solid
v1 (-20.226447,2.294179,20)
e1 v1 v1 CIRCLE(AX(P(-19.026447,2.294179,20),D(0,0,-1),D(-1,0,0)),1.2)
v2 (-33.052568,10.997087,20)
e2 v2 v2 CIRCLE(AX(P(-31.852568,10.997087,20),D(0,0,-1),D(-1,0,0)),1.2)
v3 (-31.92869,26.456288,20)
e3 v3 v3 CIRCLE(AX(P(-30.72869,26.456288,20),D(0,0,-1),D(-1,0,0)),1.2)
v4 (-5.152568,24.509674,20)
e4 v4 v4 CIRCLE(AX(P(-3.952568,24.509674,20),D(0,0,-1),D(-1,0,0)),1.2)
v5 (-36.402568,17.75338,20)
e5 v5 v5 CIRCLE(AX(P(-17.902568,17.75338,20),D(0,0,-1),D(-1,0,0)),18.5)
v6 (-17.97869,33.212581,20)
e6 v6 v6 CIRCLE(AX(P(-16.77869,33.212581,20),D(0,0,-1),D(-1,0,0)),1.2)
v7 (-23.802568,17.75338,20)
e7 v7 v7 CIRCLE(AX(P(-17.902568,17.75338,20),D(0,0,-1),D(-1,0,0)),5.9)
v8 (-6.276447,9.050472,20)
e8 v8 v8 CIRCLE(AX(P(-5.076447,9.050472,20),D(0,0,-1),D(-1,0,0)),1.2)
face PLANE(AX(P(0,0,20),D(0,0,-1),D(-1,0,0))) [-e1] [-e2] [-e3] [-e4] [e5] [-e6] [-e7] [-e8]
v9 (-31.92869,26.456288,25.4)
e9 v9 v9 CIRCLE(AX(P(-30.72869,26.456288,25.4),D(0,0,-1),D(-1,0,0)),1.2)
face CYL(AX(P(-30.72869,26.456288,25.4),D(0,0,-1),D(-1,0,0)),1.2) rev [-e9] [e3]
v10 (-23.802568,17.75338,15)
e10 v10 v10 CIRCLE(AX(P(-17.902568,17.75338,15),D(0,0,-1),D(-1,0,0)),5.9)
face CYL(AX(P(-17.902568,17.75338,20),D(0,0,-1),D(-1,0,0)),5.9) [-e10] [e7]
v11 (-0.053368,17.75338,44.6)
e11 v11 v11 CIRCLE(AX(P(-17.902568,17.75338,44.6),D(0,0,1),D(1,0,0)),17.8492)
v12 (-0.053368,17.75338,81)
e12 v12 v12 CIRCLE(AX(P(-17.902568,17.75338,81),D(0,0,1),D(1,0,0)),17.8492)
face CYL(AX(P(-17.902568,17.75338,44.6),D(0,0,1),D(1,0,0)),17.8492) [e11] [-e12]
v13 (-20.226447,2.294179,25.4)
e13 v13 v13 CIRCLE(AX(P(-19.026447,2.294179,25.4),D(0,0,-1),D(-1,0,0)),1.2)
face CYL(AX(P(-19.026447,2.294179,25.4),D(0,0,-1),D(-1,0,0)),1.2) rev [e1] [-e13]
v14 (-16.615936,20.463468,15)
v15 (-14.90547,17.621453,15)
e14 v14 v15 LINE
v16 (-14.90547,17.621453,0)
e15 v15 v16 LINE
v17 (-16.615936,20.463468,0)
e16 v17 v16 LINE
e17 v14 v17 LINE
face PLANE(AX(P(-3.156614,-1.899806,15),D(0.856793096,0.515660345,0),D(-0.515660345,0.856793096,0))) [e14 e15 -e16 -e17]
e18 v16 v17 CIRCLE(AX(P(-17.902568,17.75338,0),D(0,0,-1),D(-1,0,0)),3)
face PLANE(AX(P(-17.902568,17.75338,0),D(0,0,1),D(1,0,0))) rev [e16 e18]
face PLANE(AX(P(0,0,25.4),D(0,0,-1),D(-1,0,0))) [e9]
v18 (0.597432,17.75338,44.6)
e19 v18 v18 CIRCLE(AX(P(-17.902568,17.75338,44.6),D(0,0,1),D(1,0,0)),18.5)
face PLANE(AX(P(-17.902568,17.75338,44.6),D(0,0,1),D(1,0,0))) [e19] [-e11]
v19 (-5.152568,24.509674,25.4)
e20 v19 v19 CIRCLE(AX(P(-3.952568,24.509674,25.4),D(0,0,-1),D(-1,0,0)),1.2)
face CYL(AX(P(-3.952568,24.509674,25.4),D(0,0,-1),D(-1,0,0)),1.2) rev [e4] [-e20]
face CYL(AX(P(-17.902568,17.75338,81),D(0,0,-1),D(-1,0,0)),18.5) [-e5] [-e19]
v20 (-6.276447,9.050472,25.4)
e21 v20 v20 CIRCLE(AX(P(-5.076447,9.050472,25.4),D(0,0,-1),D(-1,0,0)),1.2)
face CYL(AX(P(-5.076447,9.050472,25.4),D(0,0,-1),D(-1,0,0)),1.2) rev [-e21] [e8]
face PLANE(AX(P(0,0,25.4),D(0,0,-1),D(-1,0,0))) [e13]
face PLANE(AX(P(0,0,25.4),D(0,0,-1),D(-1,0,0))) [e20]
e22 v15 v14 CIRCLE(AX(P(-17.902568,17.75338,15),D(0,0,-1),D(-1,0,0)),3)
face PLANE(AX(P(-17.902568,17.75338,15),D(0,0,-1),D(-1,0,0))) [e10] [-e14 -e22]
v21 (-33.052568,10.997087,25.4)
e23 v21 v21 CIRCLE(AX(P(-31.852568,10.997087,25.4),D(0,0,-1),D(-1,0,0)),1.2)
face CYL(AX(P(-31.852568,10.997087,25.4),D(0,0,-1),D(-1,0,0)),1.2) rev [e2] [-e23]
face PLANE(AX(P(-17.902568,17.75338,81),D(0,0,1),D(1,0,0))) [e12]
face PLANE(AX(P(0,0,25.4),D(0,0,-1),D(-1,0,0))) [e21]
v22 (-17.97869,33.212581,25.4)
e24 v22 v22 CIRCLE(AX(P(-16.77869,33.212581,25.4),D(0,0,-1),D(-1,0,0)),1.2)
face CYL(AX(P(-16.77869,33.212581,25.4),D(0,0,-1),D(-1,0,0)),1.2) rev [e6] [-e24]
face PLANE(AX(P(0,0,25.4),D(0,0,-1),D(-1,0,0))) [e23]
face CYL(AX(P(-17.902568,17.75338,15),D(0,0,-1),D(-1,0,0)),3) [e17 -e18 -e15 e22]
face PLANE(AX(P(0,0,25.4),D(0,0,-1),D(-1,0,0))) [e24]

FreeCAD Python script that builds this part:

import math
import FreeCAD as App
import Part
import Sketcher

V = App.Vector
Q = App.Units.Quantity

doc = App.newDocument("Part")
body = doc.addObject("PartDesign::Body", "Body")

sketch1 = body.newObject("Sketcher::SketchObject", "Sketch")
sketch1.AttachmentSupport = (doc.getObject("XY_Plane"), [""])
sketch1.MapMode = "FlatFace"
sketch1.addGeometry(Part.Circle(V(-18, 18, 0), V(0, 0, 1), 18), False)
sketch1.addConstraint(Sketcher.Constraint("Diameter", 0, Q("37 mm")))
sketch1.addConstraint(Sketcher.Constraint("DistanceX", 0, 3, -1, 1, Q("17.902568 mm")))
sketch1.addConstraint(Sketcher.Constraint("DistanceY", -1, 1, 0, 3, Q("17.75338 mm")))
pad1 = body.newObject("PartDesign::Pad", "Pad")
pad1.Profile = sketch1
pad1.Length = 81

sketch2 = body.newObject("Sketcher::SketchObject", "Sketch001")
sketch2.AttachmentSupport = (doc.getObject("XY_Plane"), [""])
sketch2.MapMode = "FlatFace"
sketch2.addGeometry(Part.Circle(V(-18, 18, 0), V(0, 0, 1), 34), False)
sketch2.addGeometry(Part.Circle(V(-18, 18, 0), V(0, 0, 1), 6), False)
sketch2.addConstraint(Sketcher.Constraint("Coincident", 1, 3, 0, 3))
sketch2.addConstraint(Sketcher.Constraint("Diameter", 0, Q("69 mm")))
sketch2.addConstraint(Sketcher.Constraint("Diameter", 1, Q("11.8 mm")))
sketch2.addConstraint(Sketcher.Constraint("DistanceX", 0, 3, -1, 1, Q("17.902568 mm")))
sketch2.addConstraint(Sketcher.Constraint("DistanceY", -1, 1, 0, 3, Q("17.75338 mm")))
pocket1 = body.newObject("PartDesign::Pocket", "Pocket")
pocket1.Profile = sketch2
pocket1.Length = 20
pocket1.Reversed = True

sketch3 = body.newObject("Sketcher::SketchObject", "Sketch002")
sketch3.AttachmentSupport = (doc.getObject("XY_Plane"), [""])
sketch3.MapMode = "FlatFace"
sketch3.addGeometry(Part.Circle(V(-17.9, 17.8, 0), V(0, 0, 1), 5.9), False)
sketch3.addGeometry(Part.Circle(V(-17.9, 17.8, 0), V(0, 0, 1), 3), False)
sketch3.addConstraint(Sketcher.Constraint("Coincident", 1, 3, 0, 3))
sketch3.addConstraint(Sketcher.Constraint("Diameter", 1, Q("6 mm")))
sketch3.addConstraint(Sketcher.Constraint("Diameter", 0, Q("11.8 mm")))
sketch3.addConstraint(Sketcher.Constraint("DistanceX", 0, 3, -1, 1, Q("17.902568 mm")))
sketch3.addConstraint(Sketcher.Constraint("DistanceY", -1, 1, 0, 3, Q("17.75338 mm")))
pocket2 = body.newObject("PartDesign::Pocket", "Pocket001")
pocket2.Profile = sketch3
pocket2.Length = 15
pocket2.Reversed = True

sketch4 = body.newObject("Sketcher::SketchObject", "Sketch003")
sketch4.AttachmentSupport = (doc.getObject("XY_Plane"), [""])
sketch4.MapMode = "FlatFace"
sketch4.AttachmentOffset = App.Placement(V(0, 0, 81), App.Rotation())
sketch4.addGeometry(Part.Circle(V(-18, 18, 0), V(0, 0, 1), 34), False)
sketch4.addGeometry(Part.Circle(V(-18, 18, 0), V(0, 0, 1), 18), False)
sketch4.addConstraint(Sketcher.Constraint("Coincident", 1, 3, 0, 3))
sketch4.addConstraint(Sketcher.Constraint("Diameter", 0, Q("69 mm")))
sketch4.addConstraint(Sketcher.Constraint("Diameter", 1, Q("35.6984 mm")))
sketch4.addConstraint(Sketcher.Constraint("DistanceX", 0, 3, -1, 1, Q("17.902568 mm")))
sketch4.addConstraint(Sketcher.Constraint("DistanceY", -1, 1, 0, 3, Q("17.75338 mm")))
pocket3 = body.newObject("PartDesign::Pocket", "Pocket002")
pocket3.Profile = sketch4
pocket3.Length = 36.4

sketch5 = body.newObject("Sketcher::SketchObject", "Sketch004")
sketch5.AttachmentSupport = (doc.getObject("XY_Plane"), [""])
sketch5.MapMode = "FlatFace"
sketch5.addGeometry(Part.LineSegment(V(-14.9, 17.6, 0), V(-15.7, 19, 0)), False)
sketch5.addGeometry(Part.LineSegment(V(-15.7, 19, 0), V(-16.6, 20.5, 0)), False)
sketch5.addGeometry(Part.ArcOfCircle(Part.Circle(V(-17.9, 17.8, 0), V(0, 0, 1), 3), math.radians(-3), math.radians(65)), False)
sketch5.addConstraint(Sketcher.Constraint("Coincident", 0, 2, 1, 1))
sketch5.addConstraint(Sketcher.Constraint("Coincident", 1, 2, 2, 2))
sketch5.addConstraint(Sketcher.Constraint("Coincident", 2, 1, 0, 1))
sketch5.addConstraint(Sketcher.Constraint("Parallel", 0, 1))
sketch5.addConstraint(Sketcher.Constraint("Radius", 2, Q("3 mm")))
sketch5.addConstraint(Sketcher.Constraint("DistanceX", 0, 2, -1, 1, Q("15.747198 mm")))
sketch5.addConstraint(Sketcher.Constraint("Distance", 0, Q("1.63233 mm")))
sketch5.addConstraint(Sketcher.Constraint("Distance", 1, Q("1.684709 mm")))
sketch5.addConstraint(Sketcher.Constraint("DistanceX", 2, 3, -1, 1, Q("17.902568 mm")))
sketch5.addConstraint(Sketcher.Constraint("DistanceY", -1, 1, 2, 3, Q("17.75338 mm")))
pocket4 = body.newObject("PartDesign::Pocket", "Pocket003")
pocket4.Profile = sketch5
pocket4.Length = 15
pocket4.Reversed = True

sketch6 = body.newObject("Sketcher::SketchObject", "Sketch005")
sketch6.AttachmentSupport = (doc.getObject("XY_Plane"), [""])
sketch6.MapMode = "FlatFace"
sketch6.addGeometry(Part.ArcOfCircle(Part.Circle(V(-4, 24.5, 0), V(0, 0, 1), 1.2), math.radians(146), math.radians(180)), False)
sketch6.addGeometry(Part.ArcOfCircle(Part.Circle(V(-4, 24.5, 0), V(0, 0, 1), 1.2), math.radians(-94), math.radians(146)), False)
sketch6.addGeometry(Part.ArcOfCircle(Part.Circle(V(-4, 24.5, 0), V(0, 0, 1), 1.2), math.radians(180), math.radians(266)), False)
sketch6.addGeometry(Part.ArcOfCircle(Part.Circle(V(-16.8, 33.2, 0), V(0, 0, 1), 1.2), math.radians(-154), math.radians(-34)), False)
sketch6.addGeometry(Part.ArcOfCircle(Part.Circle(V(-16.8, 33.2, 0), V(0, 0, 1), 1.2), math.radians(-180), math.radians(-154)), False)
sketch6.addGeometry(Part.ArcOfCircle(Part.Circle(V(-16.8, 33.2, 0), V(0, 0, 1), 1.2), math.radians(-34), math.radians(180)), False)
sketch6.addGeometry(Part.ArcOfCircle(Part.Circle(V(-5.1, 9.1, 0), V(0, 0, 1), 1.2), math.radians(86), math.radians(180)), False)
sketch6.addGeometry(Part.ArcOfCircle(Part.Circle(V(-5.1, 9.1, 0), V(0, 0, 1), 1.2), math.radians(-154), math.radians(86)), False)
sketch6.addGeometry(Part.ArcOfCircle(Part.Circle(V(-5.1, 9.1, 0), V(0, 0, 1), 1.2), math.radians(180), math.radians(206)), False)
sketch6.addGeometry(Part.ArcOfCircle(Part.Circle(V(-30.7, 26.5, 0), V(0, 0, 1), 1.2), math.radians(26), math.radians(180)), False)
sketch6.addGeometry(Part.ArcOfCircle(Part.Circle(V(-30.7, 26.5, 0), V(0, 0, 1), 1.2), math.radians(-94), math.radians(26)), False)
sketch6.addGeometry(Part.ArcOfCircle(Part.Circle(V(-30.7, 26.5, 0), V(0, 0, 1), 1.2), math.radians(180), math.radians(266)), False)
sketch6.addGeometry(Part.ArcOfCircle(Part.Circle(V(-31.9, 11, 0), V(0, 0, 1), 1.2), math.radians(86), math.radians(180)), False)
sketch6.addGeometry(Part.ArcOfCircle(Part.Circle(V(-31.9, 11, 0), V(0, 0, 1), 1.2), math.radians(-34), math.radians(86)), False)
sketch6.addGeometry(Part.ArcOfCircle(Part.Circle(V(-31.9, 11, 0), V(0, 0, 1), 1.2), math.radians(180), math.radians(326)), False)
sketch6.addGeometry(Part.ArcOfCircle(Part.Circle(V(-19, 2.3, 0), V(0, 0, 1), 1.2), math.radians(26), math.radians(146)), False)
sketch6.addGeometry(Part.ArcOfCircle(Part.Circle(V(-19, 2.3, 0), V(0, 0, 1), 1.2), math.radians(180), math.radians(386)), False)
sketch6.addGeometry(Part.ArcOfCircle(Part.Circle(V(-19, 2.3, 0), V(0, 0, 1), 1.2), math.radians(146), math.radians(180)), False)
sketch6.addConstraint(Sketcher.Constraint("Tangent", 0, 1, 1, 2))
sketch6.addConstraint(Sketcher.Constraint("Tangent", 1, 1, 2, 2))
sketch6.addConstraint(Sketcher.Constraint("Tangent", 2, 1, 0, 2))
sketch6.addConstraint(Sketcher.Constraint("Tangent", 3, 1, 4, 2))
sketch6.addConstraint(Sketcher.Constraint("Tangent", 4, 1, 5, 2))
sketch6.addConstraint(Sketcher.Constraint("Tangent", 5, 1, 3, 2))
sketch6.addConstraint(Sketcher.Constraint("Tangent", 6, 1, 7, 2))
sketch6.addConstraint(Sketcher.Constraint("Tangent", 7, 1, 8, 2))
sketch6.addConstraint(Sketcher.Constraint("Tangent", 8, 1, 6, 2))
sketch6.addConstraint(Sketcher.Constraint("Tangent", 9, 1, 10, 2))
sketch6.addConstraint(Sketcher.Constraint("Tangent", 10, 1, 11, 2))
sketch6.addConstraint(Sketcher.Constraint("Tangent", 11, 1, 9, 2))
sketch6.addConstraint(Sketcher.Constraint("Tangent", 12, 1, 13, 2))
sketch6.addConstraint(Sketcher.Constraint("Tangent", 13, 1, 14, 2))
sketch6.addConstraint(Sketcher.Constraint("Tangent", 14, 1, 12, 2))
sketch6.addConstraint(Sketcher.Constraint("Tangent", 15, 1, 16, 2))
sketch6.addConstraint(Sketcher.Constraint("Tangent", 16, 1, 17, 2))
sketch6.addConstraint(Sketcher.Constraint("Tangent", 17, 1, 15, 2))
sketch6.addConstraint(Sketcher.Constraint("Equal", 2, 3))
sketch6.addConstraint(Sketcher.Constraint("Equal", 5, 6))
sketch6.addConstraint(Sketcher.Constraint("Equal", 8, 9))
sketch6.addConstraint(Sketcher.Constraint("Equal", 11, 12))
sketch6.addConstraint(Sketcher.Constraint("Equal", 14, 15))
sketch6.addConstraint(Sketcher.Constraint("Horizontal", 1, 3, 2, 1))
sketch6.addConstraint(Sketcher.Constraint("Horizontal", 5, 3, 4, 1))
sketch6.addConstraint(Sketcher.Constraint("Horizontal", 7, 3, 8, 1))
sketch6.addConstraint(Sketcher.Constraint("Horizontal", 10, 3, 11, 1))
sketch6.addConstraint(Sketcher.Constraint("Horizontal", 13, 3, 14, 1))
sketch6.addConstraint(Sketcher.Constraint("Horizontal", 17, 3, 16, 1))
sketch6.addConstraint(Sketcher.Constraint("Radius", 0, Q("1.2 mm")))
sketch6.addConstraint(Sketcher.Constraint("DistanceX", 9, 3, 5, 3, Q("13.95 mm")))
sketch6.addConstraint(Sketcher.Constraint("DistanceX", 15, 3, 8, 3, Q("13.95 mm")))
sketch6.addConstraint(Sketcher.Constraint("DistanceX", 3, 1, 5, 3, Q("1.08 mm")))
sketch6.addConstraint(Sketcher.Constraint("DistanceX", 7, 1, 8, 3, Q("1.08 mm")))
sketch6.addConstraint(Sketcher.Constraint("DistanceX", 9, 3, 9, 1, Q("1.08 mm")))
sketch6.addConstraint(Sketcher.Constraint("DistanceX", 17, 3, 15, 1, Q("1.08 mm")))
sketch6.addConstraint(Sketcher.Constraint("DistanceX", 5, 1, -1, 1, Q("15.7857 mm")))
sketch6.addConstraint(Sketcher.Constraint("DistanceX", 10, 1, -1, 1, Q("30.8157 mm")))
sketch6.addConstraint(Sketcher.Constraint("DistanceY", 6, 3, 0, 3, Q("15.459201 mm")))
sketch6.addConstraint(Sketcher.Constraint("DistanceY", 12, 3, 9, 3, Q("15.459201 mm")))
sketch6.addConstraint(Sketcher.Constraint("DistanceX", 0, 3, -1, 1, Q("3.952568 mm")))
sketch6.addConstraint(Sketcher.Constraint("DistanceX", 3, 3, -1, 1, Q("16.77869 mm")))
sketch6.addConstraint(Sketcher.Constraint("DistanceY", -1, 1, 3, 3, Q("33.212581 mm")))
sketch6.addConstraint(Sketcher.Constraint("DistanceX", 12, 3, -1, 1, Q("31.852568 mm")))
sketch6.addConstraint(Sketcher.Constraint("DistanceY", -1, 1, 15, 3, Q("2.294179 mm")))
sketch6.addConstraint(Sketcher.Constraint("DistanceX", 0, 1, -1, 1, Q("4.945558 mm")))
sketch6.addConstraint(Sketcher.Constraint("DistanceX", 1, 1, -1, 1, Q("4.039578 mm")))
sketch6.addConstraint(Sketcher.Constraint("DistanceX", 12, 1, -1, 1, Q("31.765558 mm")))
sketch6.addConstraint(Sketcher.Constraint("DistanceY", -1, 1, 12, 1, Q("12.193928 mm")))
sketch6.addConstraint(Sketcher.Constraint("DistanceX", 13, 1, -1, 1, Q("30.859578 mm")))
sketch6.addConstraint(Sketcher.Constraint("DistanceX", 6, 3, 0, 3, Q("1.123878 mm")))
sketch6.addConstraint(Sketcher.Constraint("DistanceY", 6, 3, 4, 3, Q("24.162109 mm")))
sketch6.addConstraint(Sketcher.Constraint("DistanceX", 6, 3, 6, 1, Q("0.08701 mm")))
sketch6.addConstraint(Sketcher.Constraint("DistanceX", 16, 1, 17, 1, Q("0.20701 mm")))
pocket5 = body.newObject("PartDesign::Pocket", "Pocket004")
pocket5.Profile = sketch6
pocket5.Length = 25.4
pocket5.Reversed = True

doc.recompute()
